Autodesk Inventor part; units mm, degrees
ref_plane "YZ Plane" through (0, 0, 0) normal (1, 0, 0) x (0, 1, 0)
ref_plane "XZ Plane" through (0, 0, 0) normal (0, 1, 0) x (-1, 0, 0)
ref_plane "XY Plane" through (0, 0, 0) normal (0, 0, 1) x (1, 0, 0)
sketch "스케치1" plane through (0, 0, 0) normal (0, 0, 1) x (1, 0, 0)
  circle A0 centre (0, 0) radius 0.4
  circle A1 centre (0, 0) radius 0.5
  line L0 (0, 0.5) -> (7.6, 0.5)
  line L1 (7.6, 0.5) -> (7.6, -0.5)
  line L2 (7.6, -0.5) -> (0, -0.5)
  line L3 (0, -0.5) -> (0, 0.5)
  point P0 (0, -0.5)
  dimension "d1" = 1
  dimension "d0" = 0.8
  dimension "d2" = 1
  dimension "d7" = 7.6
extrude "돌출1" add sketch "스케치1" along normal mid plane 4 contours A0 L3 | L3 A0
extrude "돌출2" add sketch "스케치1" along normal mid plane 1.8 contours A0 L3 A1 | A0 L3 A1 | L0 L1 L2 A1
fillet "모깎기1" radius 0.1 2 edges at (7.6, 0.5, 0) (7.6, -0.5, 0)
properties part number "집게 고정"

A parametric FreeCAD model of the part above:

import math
import FreeCAD as App
import Part
import Sketcher
from FreeCAD import Vector
Q = App.Units.Quantity


def edges_at(feature, points):
    """Names of the edges that pass closest to the given points."""
    edges = feature.Shape.Edges
    near = lambda p: min(range(len(edges)), key=lambda i: edges[i].distToShape(Part.Vertex(*p))[0])
    return sorted({f"Edge{near(p) + 1}" for p in points})

doc = App.newDocument("Part")
params = doc.addObject("Spreadsheet::Sheet", "Params")
for row, (alias, value) in enumerate([
    ("sketch1_diameter", "0.8 mm"),
    ("pad1_length", "4 mm"),
    ("sketch2_diameter", "0.8 mm"),
    ("sketch2_radius", "0.5 mm"),
    ("sketch2_width", "7.6 mm"),
    ("pad2_length", "1.8 mm"),
    ("fillet_radius", "0.1 mm"),
], start=1):
    params.set(f"A{row}", alias)
    params.set(f"B{row}", "=" + value)
    params.setAlias(f"B{row}", alias)

body = doc.addObject("PartDesign::Body", "Body")

# Sketch on XY plane
sketch1 = body.newObject("Sketcher::SketchObject", "Sketch")
sketch1.AttachmentSupport = (doc.getObject("XY_Plane"), [""])
sketch1.MapMode = "FlatFace"
sketch1.addGeometry(Part.Circle(Vector(0, 0, 0), Vector(0, 0, 1), 0.4), False)
sketch1.addConstraint(Sketcher.Constraint("Coincident", 0, 3, -1, 1))
sketch1.addConstraint(Sketcher.Constraint("Diameter", 0, Q("0.8 mm")))
sketch1.setExpression("Constraints[1]", "Params.sketch1_diameter")
pad1 = body.newObject("PartDesign::Pad", "Pad")
pad1.Profile = sketch1
pad1.setExpression("Length", "Params.pad1_length")
pad1.Midplane = True

# Sketch on XY plane
sketch2 = body.newObject("Sketcher::SketchObject", "Sketch001")
sketch2.AttachmentSupport = (doc.getObject("XY_Plane"), [""])
sketch2.MapMode = "FlatFace"
sketch2.addGeometry(Part.ArcOfCircle(Part.Circle(Vector(0, 0, 0), Vector(0, 0, 1), 0.5), math.radians(90), math.radians(270)), False)
sketch2.addGeometry(Part.LineSegment(Vector(0, -0.5, 0), Vector(7.6, -0.5, 0)), False)
sketch2.addGeometry(Part.LineSegment(Vector(7.6, -0.5, 0), Vector(7.6, 0.5, 0)), False)
sketch2.addGeometry(Part.LineSegment(Vector(7.6, 0.5, 0), Vector(0, 0.5, 0)), False)
sketch2.addGeometry(Part.Circle(Vector(0, 0, 0), Vector(0, 0, 1), 0.4), False)
sketch2.addConstraint(Sketcher.Constraint("Tangent", 0, 2, 1, 1))
sketch2.addConstraint(Sketcher.Constraint("Coincident", 1, 2, 2, 1))
sketch2.addConstraint(Sketcher.Constraint("Coincident", 2, 2, 3, 1))
sketch2.addConstraint(Sketcher.Constraint("Tangent", 3, 2, 0, 1))
sketch2.addConstraint(Sketcher.Constraint("Horizontal", 1))
sketch2.addConstraint(Sketcher.Constraint("Vertical", 2))
sketch2.addConstraint(Sketcher.Constraint("Horizontal", 3))
sketch2.addConstraint(Sketcher.Constraint("Coincident", 0, 3, -1, 1))
sketch2.addConstraint(Sketcher.Constraint("Coincident", 4, 3, -1, 1))
sketch2.addConstraint(Sketcher.Constraint("Diameter", 4, Q("0.8 mm")))
sketch2.addConstraint(Sketcher.Constraint("Radius", 0, Q("0.5 mm")))
sketch2.addConstraint(Sketcher.Constraint("DistanceX", 1, 1, 1, 2, Q("7.6 mm")))
sketch2.setExpression("Constraints[9]", "Params.sketch2_diameter")
sketch2.setExpression("Constraints[10]", "Params.sketch2_radius")
sketch2.setExpression("Constraints[11]", "Params.sketch2_width")
pad2 = body.newObject("PartDesign::Pad", "Pad001")
pad2.Profile = sketch2
pad2.setExpression("Length", "Params.pad2_length")
pad2.Midplane = True
doc.recompute()

fillet = body.newObject("PartDesign::Fillet", "Fillet")
fillet.Base = (pad2, edges_at(pad2, [(7.6, 0.5, 0), (7.6, -0.5, 0)]))
fillet.setExpression("Radius", "Params.fillet_radius")

doc.recompute()
